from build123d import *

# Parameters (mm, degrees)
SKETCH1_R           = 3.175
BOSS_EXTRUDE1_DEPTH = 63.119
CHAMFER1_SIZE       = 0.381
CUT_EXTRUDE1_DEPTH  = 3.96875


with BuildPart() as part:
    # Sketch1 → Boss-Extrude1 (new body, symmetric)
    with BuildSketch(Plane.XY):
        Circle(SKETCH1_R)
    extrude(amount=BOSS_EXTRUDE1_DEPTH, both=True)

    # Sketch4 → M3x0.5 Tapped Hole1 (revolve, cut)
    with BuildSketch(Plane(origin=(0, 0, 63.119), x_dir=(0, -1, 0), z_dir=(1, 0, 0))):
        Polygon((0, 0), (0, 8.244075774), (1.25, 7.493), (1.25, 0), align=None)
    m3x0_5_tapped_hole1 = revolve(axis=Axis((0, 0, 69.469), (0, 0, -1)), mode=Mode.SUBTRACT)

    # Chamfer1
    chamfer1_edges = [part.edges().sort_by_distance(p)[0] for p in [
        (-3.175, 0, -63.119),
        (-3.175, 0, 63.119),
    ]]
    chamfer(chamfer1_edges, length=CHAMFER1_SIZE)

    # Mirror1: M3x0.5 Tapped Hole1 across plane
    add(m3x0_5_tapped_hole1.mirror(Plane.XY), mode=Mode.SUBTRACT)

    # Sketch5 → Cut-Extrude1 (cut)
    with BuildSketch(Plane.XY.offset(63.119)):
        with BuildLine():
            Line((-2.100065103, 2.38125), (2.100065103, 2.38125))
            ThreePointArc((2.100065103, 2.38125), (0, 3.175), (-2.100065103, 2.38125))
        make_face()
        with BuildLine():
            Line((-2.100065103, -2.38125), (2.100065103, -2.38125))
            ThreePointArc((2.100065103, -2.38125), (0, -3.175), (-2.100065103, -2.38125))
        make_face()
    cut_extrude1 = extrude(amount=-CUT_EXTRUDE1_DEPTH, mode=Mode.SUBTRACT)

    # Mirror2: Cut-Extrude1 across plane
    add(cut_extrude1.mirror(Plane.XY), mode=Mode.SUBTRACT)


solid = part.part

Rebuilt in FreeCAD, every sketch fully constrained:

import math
import FreeCAD as App
import Part
import Sketcher
from FreeCAD import Vector
Q = App.Units.Quantity


def edges_at(feature, points):
    """Names of the edges that pass closest to the given points."""
    edges = feature.Shape.Edges
    near = lambda p: min(range(len(edges)), key=lambda i: edges[i].distToShape(Part.Vertex(*p))[0])
    return sorted({f"Edge{near(p) + 1}" for p in points})


def add_polygon(sketch, points):
    """Adds a closed chain of lines whose ends are joined by coincident constraints."""
    first, n = sketch.GeometryCount, len(points)
    for a, b in zip(points, points[1:] + points[:1]):
        sketch.addGeometry(Part.LineSegment(App.Vector(*a, 0), App.Vector(*b, 0)), False)
    for i in range(n):
        sketch.addConstraint(Sketcher.Constraint("Coincident", first + i, 2, first + (i + 1) % n, 1))

doc = App.newDocument("Part")
params = doc.addObject("Spreadsheet::Sheet", "Params")
for row, (alias, value) in enumerate([
    ("sketch1_diameter", "0.25 in"),
    ("pad1_length", "4.97 in"),
    ("sketch2_height", "0.295 in"),
    ("groove_angle", "360 deg"),
    ("chamfer_size", "0.015 in"),
    ("sketch3_radius", "0.125 in"),
    ("pocket1_length", "0.15625 in"),
], start=1):
    params.set(f"A{row}", alias)
    params.set(f"B{row}", "=" + value)
    params.setAlias(f"B{row}", alias)

body = doc.addObject("PartDesign::Body", "Body")

# Sketch on XY plane
sketch1 = body.newObject("Sketcher::SketchObject", "Sketch")
sketch1.AttachmentSupport = (doc.getObject("XY_Plane"), [""])
sketch1.MapMode = "FlatFace"
sketch1.addGeometry(Part.Circle(Vector(0, 0, 0), Vector(0, 0, 1), 3.175), False)
sketch1.addConstraint([
    Sketcher.Constraint("Coincident", 0, 3, -1, 1),
    Sketcher.Constraint("Diameter", 0, Q("0.25 in")),
])
sketch1.setExpression("Constraints[1]", "Params.sketch1_diameter")
pad1 = body.newObject("PartDesign::Pad", "Pad")
pad1.Profile = sketch1
pad1.setExpression("Length", "Params.pad1_length")
pad1.Midplane = True

# Sketch on YZ plane
sketch2 = body.newObject("Sketcher::SketchObject", "Sketch001")
sketch2.AttachmentSupport = (doc.getObject("YZ_Plane"), [""])
sketch2.MapMode = "FlatFace"
add_polygon(sketch2, [(0, 54.874924), (0, 63.119), (-1.25, 63.119), (-1.25, 55.626)])  # lines 0-3
sketch2.addConstraint([
    Sketcher.Constraint("Vertical", 0),
    Sketcher.Constraint("Horizontal", 1),
    Sketcher.Constraint("Vertical", 2),
    Sketcher.Constraint("PointOnObject", 0, 2, -2),
    Sketcher.Constraint("Angle", 3, Q("-31 deg")),
    Sketcher.Constraint("DistanceY", 2, 2, 2, 1, Q("0.295 in")),
    Sketcher.Constraint("DistanceY", -1, 1, 2, 2, Q("2.19 in")),
    Sketcher.Constraint("DistanceX", 1, 2, 1, 1, 1.25),
])
sketch2.setExpression("Constraints[9]", "Params.sketch2_height")
groove = body.newObject("PartDesign::Groove", "Groove")
groove.Profile = sketch2
groove.ReferenceAxis = (sketch2, ["V_Axis"])
groove.setExpression("Angle", "Params.groove_angle")
doc.recompute()

chamfer = body.newObject("PartDesign::Chamfer", "Chamfer")
chamfer.Base = (groove, edges_at(groove, [(-3.175, 0, -63.119), (-3.175, 0, 63.119)]))
chamfer.setExpression("Size", "Params.chamfer_size")
doc.recompute()

mirrored = body.newObject("PartDesign::Mirrored", "Mirrored")
mirrored.Originals = [groove]
mirrored.MirrorPlane = (doc.getObject("XY_Plane"), [""])
body.Tip = mirrored

# Sketch on XY plane
sketch3 = body.newObject("Sketcher::SketchObject", "Sketch002")
sketch3.AttachmentSupport = (doc.getObject("XY_Plane"), [""])
sketch3.MapMode = "FlatFace"
sketch3.AttachmentOffset = App.Placement(Vector(0, 0, 2.485 * 25.4), App.Rotation())
sketch3.addGeometry([
    Part.LineSegment(Vector(-2.100065, 2.38125, 0), Vector(2.100065, 2.38125, 0)),
    Part.ArcOfCircle(Part.Circle(Vector(0, 0, 0), Vector(0, 0, 1), 3.175), math.radians(48.590378), math.radians(131.409622)),
    Part.LineSegment(Vector(2.100065, -2.38125, 0), Vector(-2.100065, -2.38125, 0)),
    Part.ArcOfCircle(Part.Circle(Vector(0, 0, 0), Vector(0, 0, 1), 3.175), math.radians(-131.409622), math.radians(-48.590378)),
], False)
sketch3.addConstraint([
    Sketcher.Constraint("Coincident", 0, 1, 1, 2),
    Sketcher.Constraint("Coincident", 1, 1, 0, 2),
    Sketcher.Constraint("Coincident", 2, 1, 3, 2),
    Sketcher.Constraint("Coincident", 3, 1, 2, 2),
    Sketcher.Constraint("Horizontal", 0),
    Sketcher.Constraint("Horizontal", 2),
    Sketcher.Constraint("Coincident", 1, 3, -1, 1),
    Sketcher.Constraint("Coincident", 3, 3, -1, 1),
    Sketcher.Constraint("Equal", 1, 3),
    Sketcher.Constraint("Vertical", 1, 1, 2, 1),
    Sketcher.Constraint("Radius", 1, Q("0.125 in")),
    Sketcher.Constraint("DistanceY", -1, 1, 0, 1, Q("0.09375 in")),
])
sketch3.setExpression("Constraints[10]", "Params.sketch3_radius")
pocket1 = body.newObject("PartDesign::Pocket", "Pocket")
pocket1.Profile = sketch3
pocket1.setExpression("Length", "Params.pocket1_length")
doc.recompute()

mirrored2 = body.newObject("PartDesign::Mirrored", "Mirrored001")
mirrored2.Originals = [pocket1]
mirrored2.MirrorPlane = (doc.getObject("XY_Plane"), [""])
body.Tip = mirrored2

doc.recompute()
